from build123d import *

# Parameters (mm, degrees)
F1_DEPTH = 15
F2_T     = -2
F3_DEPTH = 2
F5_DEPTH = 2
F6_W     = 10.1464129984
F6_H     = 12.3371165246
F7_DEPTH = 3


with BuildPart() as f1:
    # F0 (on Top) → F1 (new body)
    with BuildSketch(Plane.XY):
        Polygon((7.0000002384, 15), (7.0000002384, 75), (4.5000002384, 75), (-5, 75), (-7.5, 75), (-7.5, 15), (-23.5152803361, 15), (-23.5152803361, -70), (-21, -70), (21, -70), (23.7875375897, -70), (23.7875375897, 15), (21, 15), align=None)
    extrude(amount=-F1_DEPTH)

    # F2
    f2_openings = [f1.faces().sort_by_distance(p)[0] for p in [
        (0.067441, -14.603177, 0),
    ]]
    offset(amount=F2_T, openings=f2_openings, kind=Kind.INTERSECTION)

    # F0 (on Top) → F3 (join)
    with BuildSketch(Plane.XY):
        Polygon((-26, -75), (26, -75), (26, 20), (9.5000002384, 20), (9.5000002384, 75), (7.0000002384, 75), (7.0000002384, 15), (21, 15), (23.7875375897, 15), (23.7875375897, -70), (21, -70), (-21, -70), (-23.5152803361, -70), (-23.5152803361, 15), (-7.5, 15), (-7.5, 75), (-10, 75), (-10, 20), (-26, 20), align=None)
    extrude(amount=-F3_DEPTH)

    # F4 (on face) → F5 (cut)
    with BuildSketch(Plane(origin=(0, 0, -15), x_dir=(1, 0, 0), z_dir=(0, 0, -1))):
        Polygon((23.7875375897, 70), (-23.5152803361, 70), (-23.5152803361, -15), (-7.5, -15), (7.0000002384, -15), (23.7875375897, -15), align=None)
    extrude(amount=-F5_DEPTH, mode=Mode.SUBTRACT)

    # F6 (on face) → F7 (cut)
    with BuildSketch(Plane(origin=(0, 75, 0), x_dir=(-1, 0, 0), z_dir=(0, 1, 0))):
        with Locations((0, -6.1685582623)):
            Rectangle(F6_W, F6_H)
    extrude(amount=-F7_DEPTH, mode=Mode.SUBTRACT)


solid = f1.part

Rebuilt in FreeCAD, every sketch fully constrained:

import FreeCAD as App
import Part
import Sketcher

V = App.Vector
Q = App.Units.Quantity


def faces_at(feature, points):
    """Names of the faces that lie closest to the given points."""
    faces = feature.Shape.Faces
    near = lambda p: min(range(len(faces)), key=lambda i: faces[i].distToShape(Part.Vertex(*p))[0])
    return sorted({f"Face{near(p) + 1}" for p in points})

doc = App.newDocument("Part")
body = doc.addObject("PartDesign::Body", "Body")

sketch1 = body.newObject("Sketcher::SketchObject", "Sketch")
sketch1.AttachmentSupport = (doc.getObject("XY_Plane"), [""])
sketch1.MapMode = "FlatFace"
sketch1.addGeometry(Part.LineSegment(V(7, 15, 0), V(7, 75, 0)), False)
sketch1.addGeometry(Part.LineSegment(V(7, 75, 0), V(-8, 75, 0)), False)
sketch1.addGeometry(Part.LineSegment(V(-8, 75, 0), V(-8, 15, 0)), False)
sketch1.addGeometry(Part.LineSegment(V(-8, 15, 0), V(-24, 15, 0)), False)
sketch1.addGeometry(Part.LineSegment(V(-24, 15, 0), V(-24, -70, 0)), False)
sketch1.addGeometry(Part.LineSegment(V(-24, -70, 0), V(24, -70, 0)), False)
sketch1.addGeometry(Part.LineSegment(V(24, -70, 0), V(24, 15, 0)), False)
sketch1.addGeometry(Part.LineSegment(V(24, 15, 0), V(7, 15, 0)), False)
sketch1.addConstraint(Sketcher.Constraint("Coincident", 0, 2, 1, 1))
sketch1.addConstraint(Sketcher.Constraint("Coincident", 1, 2, 2, 1))
sketch1.addConstraint(Sketcher.Constraint("Coincident", 2, 2, 3, 1))
sketch1.addConstraint(Sketcher.Constraint("Coincident", 3, 2, 4, 1))
sketch1.addConstraint(Sketcher.Constraint("Coincident", 4, 2, 5, 1))
sketch1.addConstraint(Sketcher.Constraint("Coincident", 5, 2, 6, 1))
sketch1.addConstraint(Sketcher.Constraint("Coincident", 6, 2, 7, 1))
sketch1.addConstraint(Sketcher.Constraint("Coincident", 7, 2, 0, 1))
sketch1.addConstraint(Sketcher.Constraint("Vertical", 0))
sketch1.addConstraint(Sketcher.Constraint("Horizontal", 1))
sketch1.addConstraint(Sketcher.Constraint("Vertical", 2))
sketch1.addConstraint(Sketcher.Constraint("Horizontal", 3))
sketch1.addConstraint(Sketcher.Constraint("Vertical", 4))
sketch1.addConstraint(Sketcher.Constraint("Horizontal", 5))
sketch1.addConstraint(Sketcher.Constraint("Vertical", 6))
sketch1.addConstraint(Sketcher.Constraint("Horizontal", 7))
sketch1.addConstraint(Sketcher.Constraint("Horizontal", 3, 2, 6, 2))
sketch1.addConstraint(Sketcher.Constraint("DistanceY", 0, 1, 0, 2, Q("60 mm")))
sketch1.addConstraint(Sketcher.Constraint("DistanceY", 4, 2, 4, 1, Q("85 mm")))
sketch1.addConstraint(Sketcher.Constraint("DistanceX", 1, 2, 1, 1, Q("14.5 mm")))
sketch1.addConstraint(Sketcher.Constraint("DistanceX", -1, 1, 0, 2, Q("7 mm")))
sketch1.addConstraint(Sketcher.Constraint("DistanceY", -1, 1, 0, 2, Q("75 mm")))
sketch1.addConstraint(Sketcher.Constraint("DistanceX", 3, 2, 3, 1, Q("16.01528 mm")))
sketch1.addConstraint(Sketcher.Constraint("DistanceX", 5, 1, 5, 2, Q("47.302818 mm")))
pad1 = body.newObject("PartDesign::Pad", "Pad")
pad1.Profile = sketch1
pad1.Length = 15
pad1.Reversed = True
doc.recompute()

thickness = body.newObject("PartDesign::Thickness", "Thickness")
thickness.Base = (pad1, faces_at(pad1, [(0.136, 2.5, 0)]))
thickness.Value = 2
thickness.Reversed = True
thickness.Join = "Intersection"

sketch2 = body.newObject("Sketcher::SketchObject", "Sketch001")
sketch2.AttachmentSupport = (doc.getObject("XY_Plane"), [""])
sketch2.MapMode = "FlatFace"
sketch2.addGeometry(Part.LineSegment(V(-26, -75, 0), V(26, -75, 0)), False)
sketch2.addGeometry(Part.LineSegment(V(26, -75, 0), V(26, 20, 0)), False)
sketch2.addGeometry(Part.LineSegment(V(26, 20, 0), V(9.5, 20, 0)), False)
sketch2.addGeometry(Part.LineSegment(V(9.5, 20, 0), V(9.5, 75, 0)), False)
sketch2.addGeometry(Part.LineSegment(V(9.5, 75, 0), V(7, 75, 0)), False)
sketch2.addGeometry(Part.LineSegment(V(7, 75, 0), V(7, 15, 0)), False)
sketch2.addGeometry(Part.LineSegment(V(7, 15, 0), V(23.8, 15, 0)), False)
sketch2.addGeometry(Part.LineSegment(V(23.8, 15, 0), V(23.8, -70, 0)), False)
sketch2.addGeometry(Part.LineSegment(V(23.8, -70, 0), V(-23.5, -70, 0)), False)
sketch2.addGeometry(Part.LineSegment(V(-23.5, -70, 0), V(-23.5, 15, 0)), False)
sketch2.addGeometry(Part.LineSegment(V(-23.5, 15, 0), V(-7.5, 15, 0)), False)
sketch2.addGeometry(Part.LineSegment(V(-7.5, 15, 0), V(-7.5, 75, 0)), False)
sketch2.addGeometry(Part.LineSegment(V(-7.5, 75, 0), V(-10, 75, 0)), False)
sketch2.addGeometry(Part.LineSegment(V(-10, 75, 0), V(-10, 20, 0)), False)
sketch2.addGeometry(Part.LineSegment(V(-10, 20, 0), V(-26, 20, 0)), False)
sketch2.addGeometry(Part.LineSegment(V(-26, 20, 0), V(-26, -75, 0)), False)
sketch2.addConstraint(Sketcher.Constraint("Coincident", 0, 2, 1, 1))
sketch2.addConstraint(Sketcher.Constraint("Coincident", 1, 2, 2, 1))
sketch2.addConstraint(Sketcher.Constraint("Coincident", 2, 2, 3, 1))
sketch2.addConstraint(Sketcher.Constraint("Coincident", 3, 2, 4, 1))
sketch2.addConstraint(Sketcher.Constraint("Coincident", 4, 2, 5, 1))
sketch2.addConstraint(Sketcher.Constraint("Coincident", 5, 2, 6, 1))
sketch2.addConstraint(Sketcher.Constraint("Coincident", 6, 2, 7, 1))
sketch2.addConstraint(Sketcher.Constraint("Coincident", 7, 2, 8, 1))
sketch2.addConstraint(Sketcher.Constraint("Coincident", 8, 2, 9, 1))
sketch2.addConstraint(Sketcher.Constraint("Coincident", 9, 2, 10, 1))
sketch2.addConstraint(Sketcher.Constraint("Coincident", 10, 2, 11, 1))
sketch2.addConstraint(Sketcher.Constraint("Coincident", 11, 2, 12, 1))
sketch2.addConstraint(Sketcher.Constraint("Coincident", 12, 2, 13, 1))
sketch2.addConstraint(Sketcher.Constraint("Coincident", 13, 2, 14, 1))
sketch2.addConstraint(Sketcher.Constraint("Coincident", 14, 2, 15, 1))
sketch2.addConstraint(Sketcher.Constraint("Coincident", 15, 2, 0, 1))
sketch2.addConstraint(Sketcher.Constraint("Horizontal", 0))
sketch2.addConstraint(Sketcher.Constraint("Vertical", 1))
sketch2.addConstraint(Sketcher.Constraint("Horizontal", 2))
sketch2.addConstraint(Sketcher.Constraint("Vertical", 3))
sketch2.addConstraint(Sketcher.Constraint("Horizontal", 4))
sketch2.addConstraint(Sketcher.Constraint("Vertical", 5))
sketch2.addConstraint(Sketcher.Constraint("Horizontal", 6))
sketch2.addConstraint(Sketcher.Constraint("Vertical", 7))
sketch2.addConstraint(Sketcher.Constraint("Horizontal", 8))
sketch2.addConstraint(Sketcher.Constraint("Vertical", 9))
sketch2.addConstraint(Sketcher.Constraint("Horizontal", 10))
sketch2.addConstraint(Sketcher.Constraint("Vertical", 11))
sketch2.addConstraint(Sketcher.Constraint("Horizontal", 12))
sketch2.addConstraint(Sketcher.Constraint("Vertical", 13))
sketch2.addConstraint(Sketcher.Constraint("Horizontal", 14))
sketch2.addConstraint(Sketcher.Constraint("Vertical", 15))
sketch2.addConstraint(Sketcher.Constraint("Symmetric", 1, 2, 14, 2, -2))
sketch2.addConstraint(Sketcher.Constraint("Horizontal", 6, 2, 9, 2))
sketch2.addConstraint(Sketcher.Constraint("Horizontal", 4, 2, 11, 2))
sketch2.addConstraint(Sketcher.Constraint("Equal", 4, 12))
sketch2.addConstraint(Sketcher.Constraint("DistanceX", 0, 1, 0, 2, Q("52 mm")))
sketch2.addConstraint(Sketcher.Constraint("DistanceX", 14, 2, 14, 1, Q("16 mm")))
sketch2.addConstraint(Sketcher.Constraint("DistanceY", 1, 1, 1, 2, Q("95 mm")))
sketch2.addConstraint(Sketcher.Constraint("DistanceY", 3, 1, 3, 2, Q("55 mm")))
sketch2.addConstraint(Sketcher.Constraint("DistanceY", 5, 2, 5, 1, Q("60 mm")))
sketch2.addConstraint(Sketcher.Constraint("DistanceY", 7, 2, 7, 1, Q("85 mm")))
sketch2.addConstraint(Sketcher.Constraint("DistanceX", 2, 2, 2, 1, Q("16.5 mm")))
sketch2.addConstraint(Sketcher.Constraint("DistanceX", 4, 2, 4, 1, Q("2.5 mm")))
sketch2.addConstraint(Sketcher.Constraint("DistanceY", 0, 2, -1, 1, Q("75 mm")))
sketch2.addConstraint(Sketcher.Constraint("DistanceX", 10, 1, 10, 2, Q("16.01528 mm")))
sketch2.addConstraint(Sketcher.Constraint("DistanceX", 6, 1, 6, 2, Q("16.787537 mm")))
pad2 = body.newObject("PartDesign::Pad", "Pad001")
pad2.Profile = sketch2
pad2.Length = 2
pad2.Reversed = True

sketch3 = body.newObject("Sketcher::SketchObject", "Sketch002")
sketch3.AttachmentSupport = (doc.getObject("XY_Plane"), [""])
sketch3.MapMode = "FlatFace"
sketch3.AttachmentOffset = App.Placement(V(0, 0, -15), App.Rotation())
sketch3.addGeometry(Part.LineSegment(V(24, -70, 0), V(-24, -70, 0)), False)
sketch3.addGeometry(Part.LineSegment(V(-24, -70, 0), V(-24, 15, 0)), False)
sketch3.addGeometry(Part.LineSegment(V(-24, 15, 0), V(24, 15, 0)), False)
sketch3.addGeometry(Part.LineSegment(V(24, 15, 0), V(24, -70, 0)), False)
sketch3.addConstraint(Sketcher.Constraint("Coincident", 0, 2, 1, 1))
sketch3.addConstraint(Sketcher.Constraint("Coincident", 1, 2, 2, 1))
sketch3.addConstraint(Sketcher.Constraint("Coincident", 2, 2, 3, 1))
sketch3.addConstraint(Sketcher.Constraint("Coincident", 3, 2, 0, 1))
sketch3.addConstraint(Sketcher.Constraint("Horizontal", 0))
sketch3.addConstraint(Sketcher.Constraint("Vertical", 1))
sketch3.addConstraint(Sketcher.Constraint("Horizontal", 2))
sketch3.addConstraint(Sketcher.Constraint("Vertical", 3))
sketch3.addConstraint(Sketcher.Constraint("DistanceY", 1, 1, 1, 2, Q("85 mm")))
sketch3.addConstraint(Sketcher.Constraint("DistanceY", 0, 2, -1, 1, Q("70 mm")))
sketch3.addConstraint(Sketcher.Constraint("DistanceX", 0, 2, 0, 1, Q("47.302818 mm")))
sketch3.addConstraint(Sketcher.Constraint("DistanceX", 0, 2, -1, 1, Q("23.51528 mm")))
pocket1 = body.newObject("PartDesign::Pocket", "Pocket")
pocket1.Profile = sketch3
pocket1.Length = 2
pocket1.Reversed = True

sketch4 = body.newObject("Sketcher::SketchObject", "Sketch003")
sketch4.AttachmentSupport = (doc.getObject("XZ_Plane"), [""])
sketch4.MapMode = "FlatFace"
sketch4.AttachmentOffset = App.Placement(V(0, 0, -75), App.Rotation())
sketch4.addGeometry(Part.LineSegment(V(5, 0, 0), V(5, -12, 0)), False)
sketch4.addGeometry(Part.LineSegment(V(5, -12, 0), V(-5, -12, 0)), False)
sketch4.addGeometry(Part.LineSegment(V(-5, -12, 0), V(-5, 0, 0)), False)
sketch4.addGeometry(Part.LineSegment(V(-5, 0, 0), V(5, 0, 0)), False)
sketch4.addConstraint(Sketcher.Constraint("Coincident", 0, 2, 1, 1))
sketch4.addConstraint(Sketcher.Constraint("Coincident", 1, 2, 2, 1))
sketch4.addConstraint(Sketcher.Constraint("Coincident", 2, 2, 3, 1))
sketch4.addConstraint(Sketcher.Constraint("Coincident", 3, 2, 0, 1))
sketch4.addConstraint(Sketcher.Constraint("Vertical", 0))
sketch4.addConstraint(Sketcher.Constraint("Horizontal", 1))
sketch4.addConstraint(Sketcher.Constraint("Vertical", 2))
sketch4.addConstraint(Sketcher.Constraint("Horizontal", 3))
sketch4.addConstraint(Sketcher.Constraint("Symmetric", 2, 2, 3, 2, -1, 1))
sketch4.addConstraint(Sketcher.Constraint("DistanceX", 1, 2, 1, 1, Q("10.146413 mm")))
sketch4.addConstraint(Sketcher.Constraint("DistanceY", 0, 2, 0, 1, Q("12.337117 mm")))
pocket2 = body.newObject("PartDesign::Pocket", "Pocket001")
pocket2.Profile = sketch4
pocket2.Length = 3
pocket2.Reversed = True

doc.recompute()
